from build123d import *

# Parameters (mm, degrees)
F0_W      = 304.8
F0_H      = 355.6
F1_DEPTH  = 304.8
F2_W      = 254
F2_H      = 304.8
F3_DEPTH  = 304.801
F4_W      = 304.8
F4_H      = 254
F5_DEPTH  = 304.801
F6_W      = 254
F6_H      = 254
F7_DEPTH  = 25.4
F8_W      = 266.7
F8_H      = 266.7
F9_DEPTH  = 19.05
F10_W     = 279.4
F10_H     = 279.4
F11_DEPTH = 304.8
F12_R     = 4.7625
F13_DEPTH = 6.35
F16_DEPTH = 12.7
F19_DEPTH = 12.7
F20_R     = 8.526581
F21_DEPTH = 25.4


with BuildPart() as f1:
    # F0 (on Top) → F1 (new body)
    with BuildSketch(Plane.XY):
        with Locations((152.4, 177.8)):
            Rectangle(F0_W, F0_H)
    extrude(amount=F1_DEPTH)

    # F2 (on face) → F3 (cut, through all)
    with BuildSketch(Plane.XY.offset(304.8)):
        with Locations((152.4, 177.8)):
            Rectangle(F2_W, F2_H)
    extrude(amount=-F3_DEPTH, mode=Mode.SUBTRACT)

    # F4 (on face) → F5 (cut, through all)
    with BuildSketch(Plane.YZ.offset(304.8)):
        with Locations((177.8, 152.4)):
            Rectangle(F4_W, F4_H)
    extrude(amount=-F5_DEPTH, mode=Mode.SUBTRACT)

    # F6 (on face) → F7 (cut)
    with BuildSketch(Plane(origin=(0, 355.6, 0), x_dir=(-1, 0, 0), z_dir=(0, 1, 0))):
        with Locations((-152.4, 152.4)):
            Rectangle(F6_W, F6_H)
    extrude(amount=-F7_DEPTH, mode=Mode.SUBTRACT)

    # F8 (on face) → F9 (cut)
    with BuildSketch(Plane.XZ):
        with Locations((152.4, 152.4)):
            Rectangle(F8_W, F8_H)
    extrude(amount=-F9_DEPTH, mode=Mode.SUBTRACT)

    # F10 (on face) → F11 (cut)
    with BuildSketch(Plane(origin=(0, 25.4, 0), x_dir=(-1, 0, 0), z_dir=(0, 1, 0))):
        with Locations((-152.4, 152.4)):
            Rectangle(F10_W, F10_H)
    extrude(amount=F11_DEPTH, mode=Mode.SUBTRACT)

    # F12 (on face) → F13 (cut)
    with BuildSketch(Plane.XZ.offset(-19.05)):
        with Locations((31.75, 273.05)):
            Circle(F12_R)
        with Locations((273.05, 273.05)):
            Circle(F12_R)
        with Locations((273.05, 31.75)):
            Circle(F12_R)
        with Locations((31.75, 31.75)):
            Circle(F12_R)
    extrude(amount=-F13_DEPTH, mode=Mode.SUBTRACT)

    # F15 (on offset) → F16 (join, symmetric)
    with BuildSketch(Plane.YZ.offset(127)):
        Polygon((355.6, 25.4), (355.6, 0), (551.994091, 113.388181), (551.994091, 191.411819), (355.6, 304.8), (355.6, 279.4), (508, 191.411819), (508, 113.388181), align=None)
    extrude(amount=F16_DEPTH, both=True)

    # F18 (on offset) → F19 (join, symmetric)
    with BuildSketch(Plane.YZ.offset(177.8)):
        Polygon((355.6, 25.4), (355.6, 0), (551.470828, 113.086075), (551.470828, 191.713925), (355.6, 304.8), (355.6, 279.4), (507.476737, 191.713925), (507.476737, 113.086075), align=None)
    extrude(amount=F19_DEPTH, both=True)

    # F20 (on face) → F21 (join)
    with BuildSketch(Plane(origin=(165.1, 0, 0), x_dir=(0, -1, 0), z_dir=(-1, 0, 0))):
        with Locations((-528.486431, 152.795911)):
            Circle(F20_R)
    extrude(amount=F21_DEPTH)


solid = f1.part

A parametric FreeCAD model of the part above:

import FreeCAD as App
import Part
import Sketcher
Q = App.Units.Quantity

doc = App.newDocument("Part")
body = doc.addObject("PartDesign::Body", "Body")

# Sketch on XY plane
sketch1 = body.newObject("Sketcher::SketchObject", "Sketch")
sketch1.AttachmentSupport = (doc.getObject("XY_Plane"), [""])
sketch1.MapMode = "FlatFace"
sketch1.addGeometry(Part.LineSegment(App.Vector(0, 356, 0), App.Vector(0, 0, 0)), False)
sketch1.addGeometry(Part.LineSegment(App.Vector(0, 0, 0), App.Vector(305, 0, 0)), False)
sketch1.addGeometry(Part.LineSegment(App.Vector(305, 0, 0), App.Vector(305, 356, 0)), False)
sketch1.addGeometry(Part.LineSegment(App.Vector(305, 356, 0), App.Vector(0, 356, 0)), False)
sketch1.addConstraint(Sketcher.Constraint("Coincident", 0, 2, 1, 1))
sketch1.addConstraint(Sketcher.Constraint("Coincident", 1, 2, 2, 1))
sketch1.addConstraint(Sketcher.Constraint("Coincident", 2, 2, 3, 1))
sketch1.addConstraint(Sketcher.Constraint("Coincident", 3, 2, 0, 1))
sketch1.addConstraint(Sketcher.Constraint("Vertical", 0))
sketch1.addConstraint(Sketcher.Constraint("Horizontal", 1))
sketch1.addConstraint(Sketcher.Constraint("Vertical", 2))
sketch1.addConstraint(Sketcher.Constraint("Horizontal", 3))
sketch1.addConstraint(Sketcher.Constraint("Coincident", 0, 2, -1, 1))
sketch1.addConstraint(Sketcher.Constraint("DistanceX", 1, 1, 1, 2, Q("12 in")))
sketch1.addConstraint(Sketcher.Constraint("DistanceY", 0, 2, 0, 1, Q("14 in")))
pad1 = body.newObject("PartDesign::Pad", "Pad")
pad1.Profile = sketch1
pad1.Length = Q("12 in")

# Sketch on XY plane
sketch2 = body.newObject("Sketcher::SketchObject", "Sketch001")
sketch2.AttachmentSupport = (doc.getObject("XY_Plane"), [""])
sketch2.MapMode = "FlatFace"
sketch2.AttachmentOffset = App.Placement(App.Vector(0, 0, 12 * 25.4), App.Rotation())
sketch2.addGeometry(Part.LineSegment(App.Vector(25, 330, 0), App.Vector(25, 25, 0)), False)
sketch2.addGeometry(Part.LineSegment(App.Vector(25, 25, 0), App.Vector(279, 25, 0)), False)
sketch2.addGeometry(Part.LineSegment(App.Vector(279, 25, 0), App.Vector(279, 330, 0)), False)
sketch2.addGeometry(Part.LineSegment(App.Vector(279, 330, 0), App.Vector(25, 330, 0)), False)
sketch2.addConstraint(Sketcher.Constraint("Coincident", 0, 2, 1, 1))
sketch2.addConstraint(Sketcher.Constraint("Coincident", 1, 2, 2, 1))
sketch2.addConstraint(Sketcher.Constraint("Coincident", 2, 2, 3, 1))
sketch2.addConstraint(Sketcher.Constraint("Coincident", 3, 2, 0, 1))
sketch2.addConstraint(Sketcher.Constraint("Vertical", 0))
sketch2.addConstraint(Sketcher.Constraint("Horizontal", 1))
sketch2.addConstraint(Sketcher.Constraint("Vertical", 2))
sketch2.addConstraint(Sketcher.Constraint("Horizontal", 3))
sketch2.addConstraint(Sketcher.Constraint("DistanceX", 1, 1, 1, 2, Q("10 in")))
sketch2.addConstraint(Sketcher.Constraint("DistanceY", 0, 2, 0, 1, Q("12 in")))
sketch2.addConstraint(Sketcher.Constraint("DistanceX", -1, 1, 0, 2, Q("1 in")))
sketch2.addConstraint(Sketcher.Constraint("DistanceY", -1, 1, 0, 2, Q("1 in")))
pocket1 = body.newObject("PartDesign::Pocket", "Pocket")
pocket1.Profile = sketch2
pocket1.Type = "ThroughAll"

# Sketch on YZ plane
sketch3 = body.newObject("Sketcher::SketchObject", "Sketch002")
sketch3.AttachmentSupport = (doc.getObject("YZ_Plane"), [""])
sketch3.MapMode = "FlatFace"
sketch3.AttachmentOffset = App.Placement(App.Vector(0, 0, 12 * 25.4), App.Rotation())
sketch3.addGeometry(Part.LineSegment(App.Vector(25, 279, 0), App.Vector(25, 25, 0)), False)
sketch3.addGeometry(Part.LineSegment(App.Vector(25, 25, 0), App.Vector(330, 25, 0)), False)
sketch3.addGeometry(Part.LineSegment(App.Vector(330, 25, 0), App.Vector(330, 279, 0)), False)
sketch3.addGeometry(Part.LineSegment(App.Vector(330, 279, 0), App.Vector(25, 279, 0)), False)
sketch3.addConstraint(Sketcher.Constraint("Coincident", 0, 2, 1, 1))
sketch3.addConstraint(Sketcher.Constraint("Coincident", 1, 2, 2, 1))
sketch3.addConstraint(Sketcher.Constraint("Coincident", 2, 2, 3, 1))
sketch3.addConstraint(Sketcher.Constraint("Coincident", 3, 2, 0, 1))
sketch3.addConstraint(Sketcher.Constraint("Vertical", 0))
sketch3.addConstraint(Sketcher.Constraint("Horizontal", 1))
sketch3.addConstraint(Sketcher.Constraint("Vertical", 2))
sketch3.addConstraint(Sketcher.Constraint("Horizontal", 3))
sketch3.addConstraint(Sketcher.Constraint("DistanceX", 1, 1, 1, 2, Q("12 in")))
sketch3.addConstraint(Sketcher.Constraint("DistanceY", 0, 2, 0, 1, Q("10 in")))
sketch3.addConstraint(Sketcher.Constraint("DistanceX", -1, 1, 0, 2, Q("1 in")))
sketch3.addConstraint(Sketcher.Constraint("DistanceY", -1, 1, 0, 2, Q("1 in")))
pocket2 = body.newObject("PartDesign::Pocket", "Pocket001")
pocket2.Profile = sketch3
pocket2.Type = "ThroughAll"

# Sketch on XZ plane
sketch4 = body.newObject("Sketcher::SketchObject", "Sketch003")
sketch4.AttachmentSupport = (doc.getObject("XZ_Plane"), [""])
sketch4.MapMode = "FlatFace"
sketch4.AttachmentOffset = App.Placement(App.Vector(0, 0, -14 * 25.4), App.Rotation())
sketch4.addGeometry(Part.LineSegment(App.Vector(279, 279, 0), App.Vector(279, 25, 0)), False)
sketch4.addGeometry(Part.LineSegment(App.Vector(279, 25, 0), App.Vector(25, 25, 0)), False)
sketch4.addGeometry(Part.LineSegment(App.Vector(25, 25, 0), App.Vector(25, 279, 0)), False)
sketch4.addGeometry(Part.LineSegment(App.Vector(25, 279, 0), App.Vector(279, 279, 0)), False)
sketch4.addConstraint(Sketcher.Constraint("Coincident", 0, 2, 1, 1))
sketch4.addConstraint(Sketcher.Constraint("Coincident", 1, 2, 2, 1))
sketch4.addConstraint(Sketcher.Constraint("Coincident", 2, 2, 3, 1))
sketch4.addConstraint(Sketcher.Constraint("Coincident", 3, 2, 0, 1))
sketch4.addConstraint(Sketcher.Constraint("Vertical", 0))
sketch4.addConstraint(Sketcher.Constraint("Horizontal", 1))
sketch4.addConstraint(Sketcher.Constraint("Vertical", 2))
sketch4.addConstraint(Sketcher.Constraint("Horizontal", 3))
sketch4.addConstraint(Sketcher.Constraint("Equal", 3, 0))
sketch4.addConstraint(Sketcher.Constraint("DistanceX", 1, 2, 1, 1, Q("10 in")))
sketch4.addConstraint(Sketcher.Constraint("DistanceX", -1, 1, 0, 2, Q("11 in")))
sketch4.addConstraint(Sketcher.Constraint("DistanceY", -1, 1, 0, 2, Q("1 in")))
pocket3 = body.newObject("PartDesign::Pocket", "Pocket002")
pocket3.Profile = sketch4
pocket3.Length = Q("1 in")
pocket3.Reversed = True

# Sketch on XZ plane
sketch5 = body.newObject("Sketcher::SketchObject", "Sketch004")
sketch5.AttachmentSupport = (doc.getObject("XZ_Plane"), [""])
sketch5.MapMode = "FlatFace"
sketch5.addGeometry(Part.LineSegment(App.Vector(19, 286, 0), App.Vector(19, 19, 0)), False)
sketch5.addGeometry(Part.LineSegment(App.Vector(19, 19, 0), App.Vector(286, 19, 0)), False)
sketch5.addGeometry(Part.LineSegment(App.Vector(286, 19, 0), App.Vector(286, 286, 0)), False)
sketch5.addGeometry(Part.LineSegment(App.Vector(286, 286, 0), App.Vector(19, 286, 0)), False)
sketch5.addConstraint(Sketcher.Constraint("Coincident", 0, 2, 1, 1))
sketch5.addConstraint(Sketcher.Constraint("Coincident", 1, 2, 2, 1))
sketch5.addConstraint(Sketcher.Constraint("Coincident", 2, 2, 3, 1))
sketch5.addConstraint(Sketcher.Constraint("Coincident", 3, 2, 0, 1))
sketch5.addConstraint(Sketcher.Constraint("Vertical", 0))
sketch5.addConstraint(Sketcher.Constraint("Horizontal", 1))
sketch5.addConstraint(Sketcher.Constraint("Vertical", 2))
sketch5.addConstraint(Sketcher.Constraint("Horizontal", 3))
sketch5.addConstraint(Sketcher.Constraint("Equal", 3, 0))
sketch5.addConstraint(Sketcher.Constraint("DistanceX", 1, 1, 1, 2, Q("10.5 in")))
sketch5.addConstraint(Sketcher.Constraint("DistanceX", -1, 1, 0, 2, Q("0.75 in")))
sketch5.addConstraint(Sketcher.Constraint("DistanceY", -1, 1, 0, 2, Q("0.75 in")))
pocket4 = body.newObject("PartDesign::Pocket", "Pocket003")
pocket4.Profile = sketch5
pocket4.Length = Q("0.75 in")

# Sketch on XZ plane
sketch6 = body.newObject("Sketcher::SketchObject", "Sketch005")
sketch6.AttachmentSupport = (doc.getObject("XZ_Plane"), [""])
sketch6.MapMode = "FlatFace"
sketch6.AttachmentOffset = App.Placement(App.Vector(0, 0, -1 * 25.4), App.Rotation())
sketch6.addGeometry(Part.LineSegment(App.Vector(292, 292, 0), App.Vector(292, 13, 0)), False)
sketch6.addGeometry(Part.LineSegment(App.Vector(292, 13, 0), App.Vector(13, 13, 0)), False)
sketch6.addGeometry(Part.LineSegment(App.Vector(13, 13, 0), App.Vector(13, 292, 0)), False)
sketch6.addGeometry(Part.LineSegment(App.Vector(13, 292, 0), App.Vector(292, 292, 0)), False)
sketch6.addConstraint(Sketcher.Constraint("Coincident", 0, 2, 1, 1))
sketch6.addConstraint(Sketcher.Constraint("Coincident", 1, 2, 2, 1))
sketch6.addConstraint(Sketcher.Constraint("Coincident", 2, 2, 3, 1))
sketch6.addConstraint(Sketcher.Constraint("Coincident", 3, 2, 0, 1))
sketch6.addConstraint(Sketcher.Constraint("Vertical", 0))
sketch6.addConstraint(Sketcher.Constraint("Horizontal", 1))
sketch6.addConstraint(Sketcher.Constraint("Vertical", 2))
sketch6.addConstraint(Sketcher.Constraint("Horizontal", 3))
sketch6.addConstraint(Sketcher.Constraint("Equal", 3, 0))
sketch6.addConstraint(Sketcher.Constraint("DistanceX", 1, 2, 1, 1, Q("11 in")))
sketch6.addConstraint(Sketcher.Constraint("DistanceX", -1, 1, 0, 2, Q("11.5 in")))
sketch6.addConstraint(Sketcher.Constraint("DistanceY", -1, 1, 0, 2, Q("0.5 in")))
pocket5 = body.newObject("PartDesign::Pocket", "Pocket004")
pocket5.Profile = sketch6
pocket5.Length = Q("12 in")

# Sketch on XZ plane
sketch7 = body.newObject("Sketcher::SketchObject", "Sketch006")
sketch7.AttachmentSupport = (doc.getObject("XZ_Plane"), [""])
sketch7.MapMode = "FlatFace"
sketch7.AttachmentOffset = App.Placement(App.Vector(0, 0, -0.75 * 25.4), App.Rotation())
sketch7.addGeometry(Part.Circle(App.Vector(31.8, 273.1, 0), App.Vector(0, 0, 1), 4.8), False)
sketch7.addGeometry(Part.Circle(App.Vector(273.1, 273.1, 0), App.Vector(0, 0, 1), 4.8), False)
sketch7.addGeometry(Part.Circle(App.Vector(273.1, 31.8, 0), App.Vector(0, 0, 1), 4.8), False)
sketch7.addGeometry(Part.Circle(App.Vector(31.8, 31.8, 0), App.Vector(0, 0, 1), 4.8), False)
sketch7.addConstraint(Sketcher.Constraint("Equal", 0, 1))
sketch7.addConstraint(Sketcher.Constraint("Equal", 1, 2))
sketch7.addConstraint(Sketcher.Constraint("Equal", 2, 3))
sketch7.addConstraint(Sketcher.Constraint("Horizontal", 0, 3, 1, 3))
sketch7.addConstraint(Sketcher.Constraint("Horizontal", 2, 3, 3, 3))
sketch7.addConstraint(Sketcher.Constraint("Vertical", 1, 3, 2, 3))
sketch7.addConstraint(Sketcher.Constraint("Vertical", 0, 3, 3, 3))
sketch7.addConstraint(Sketcher.Constraint("Diameter", 0, Q("0.375 in")))
sketch7.addConstraint(Sketcher.Constraint("DistanceX", 0, 3, 1, 3, Q("9.5 in")))
sketch7.addConstraint(Sketcher.Constraint("DistanceY", 2, 3, 1, 3, Q("9.5 in")))
sketch7.addConstraint(Sketcher.Constraint("DistanceX", -1, 1, 0, 3, Q("1.25 in")))
sketch7.addConstraint(Sketcher.Constraint("DistanceY", -1, 1, 0, 3, Q("10.75 in")))
pocket6 = body.newObject("PartDesign::Pocket", "Pocket005")
pocket6.Profile = sketch7
pocket6.Length = Q("0.25 in")

# Sketch on YZ plane
sketch8 = body.newObject("Sketcher::SketchObject", "Sketch007")
sketch8.AttachmentSupport = (doc.getObject("YZ_Plane"), [""])
sketch8.MapMode = "FlatFace"
sketch8.AttachmentOffset = App.Placement(App.Vector(0, 0, 5 * 25.4), App.Rotation())
sketch8.addGeometry(Part.LineSegment(App.Vector(356, 25, 0), App.Vector(356, 0, 0)), False)
sketch8.addGeometry(Part.LineSegment(App.Vector(356, 0, 0), App.Vector(552, 113, 0)), False)
sketch8.addGeometry(Part.LineSegment(App.Vector(552, 113, 0), App.Vector(552, 191, 0)), False)
sketch8.addGeometry(Part.LineSegment(App.Vector(552, 191, 0), App.Vector(356, 305, 0)), False)
sketch8.addGeometry(Part.LineSegment(App.Vector(356, 305, 0), App.Vector(356, 279, 0)), False)
sketch8.addGeometry(Part.LineSegment(App.Vector(356, 279, 0), App.Vector(508, 191, 0)), False)
sketch8.addGeometry(Part.LineSegment(App.Vector(508, 191, 0), App.Vector(508, 113, 0)), False)
sketch8.addGeometry(Part.LineSegment(App.Vector(508, 113, 0), App.Vector(356, 25, 0)), False)
sketch8.addConstraint(Sketcher.Constraint("Coincident", 0, 2, 1, 1))
sketch8.addConstraint(Sketcher.Constraint("Coincident", 1, 2, 2, 1))
sketch8.addConstraint(Sketcher.Constraint("Coincident", 2, 2, 3, 1))
sketch8.addConstraint(Sketcher.Constraint("Coincident", 3, 2, 4, 1))
sketch8.addConstraint(Sketcher.Constraint("Coincident", 4, 2, 5, 1))
sketch8.addConstraint(Sketcher.Constraint("Coincident", 5, 2, 6, 1))
sketch8.addConstraint(Sketcher.Constraint("Coincident", 6, 2, 7, 1))
sketch8.addConstraint(Sketcher.Constraint("Coincident", 7, 2, 0, 1))
sketch8.addConstraint(Sketcher.Constraint("Vertical", 0))
sketch8.addConstraint(Sketcher.Constraint("Vertical", 2))
sketch8.addConstraint(Sketcher.Constraint("Vertical", 4))
sketch8.addConstraint(Sketcher.Constraint("Vertical", 6))
sketch8.addConstraint(Sketcher.Constraint("PointOnObject", 0, 2, -1))
sketch8.addConstraint(Sketcher.Constraint("Parallel", 3, 5))
sketch8.addConstraint(Sketcher.Constraint("Parallel", 1, 7))
sketch8.addConstraint(Sketcher.Constraint("Horizontal", 2, 2, 5, 2))
sketch8.addConstraint(Sketcher.Constraint("Horizontal", 1, 2, 6, 2))
sketch8.addConstraint(Sketcher.Constraint("Vertical", 0, 2, 3, 2))
sketch8.addConstraint(Sketcher.Constraint("Equal", 0, 4))
sketch8.addConstraint(Sketcher.Constraint("DistanceY", 0, 2, 0, 1, Q("1 in")))
sketch8.addConstraint(Sketcher.Constraint("DistanceX", -1, 1, 0, 2, Q("14 in")))
sketch8.addConstraint(Sketcher.Constraint("DistanceY", -1, 1, 3, 2, Q("12 in")))
sketch8.addConstraint(Sketcher.Constraint("DistanceX", -1, 1, 5, 2, Q("20 in")))
sketch8.addConstraint(Sketcher.Constraint("Angle", 1, Q("30 deg")))
pad2 = body.newObject("PartDesign::Pad", "Pad001")
pad2.Profile = sketch8
pad2.Length = Q("1 in")
pad2.Midplane = True

# Sketch on YZ plane
sketch9 = body.newObject("Sketcher::SketchObject", "Sketch008")
sketch9.AttachmentSupport = (doc.getObject("YZ_Plane"), [""])
sketch9.MapMode = "FlatFace"
sketch9.AttachmentOffset = App.Placement(App.Vector(0, 0, 7 * 25.4), App.Rotation())
sketch9.addGeometry(Part.LineSegment(App.Vector(356, 25, 0), App.Vector(356, 0, 0)), False)
sketch9.addGeometry(Part.LineSegment(App.Vector(356, 0, 0), App.Vector(551, 113, 0)), False)
sketch9.addGeometry(Part.LineSegment(App.Vector(551, 113, 0), App.Vector(551, 192, 0)), False)
sketch9.addGeometry(Part.LineSegment(App.Vector(551, 192, 0), App.Vector(356, 305, 0)), False)
sketch9.addGeometry(Part.LineSegment(App.Vector(356, 305, 0), App.Vector(356, 279, 0)), False)
sketch9.addGeometry(Part.LineSegment(App.Vector(356, 279, 0), App.Vector(507, 192, 0)), False)
sketch9.addGeometry(Part.LineSegment(App.Vector(507, 192, 0), App.Vector(507, 113, 0)), False)
sketch9.addGeometry(Part.LineSegment(App.Vector(507, 113, 0), App.Vector(356, 25, 0)), False)
sketch9.addConstraint(Sketcher.Constraint("Coincident", 0, 2, 1, 1))
sketch9.addConstraint(Sketcher.Constraint("Coincident", 1, 2, 2, 1))
sketch9.addConstraint(Sketcher.Constraint("Coincident", 2, 2, 3, 1))
sketch9.addConstraint(Sketcher.Constraint("Coincident", 3, 2, 4, 1))
sketch9.addConstraint(Sketcher.Constraint("Coincident", 4, 2, 5, 1))
sketch9.addConstraint(Sketcher.Constraint("Coincident", 5, 2, 6, 1))
sketch9.addConstraint(Sketcher.Constraint("Coincident", 6, 2, 7, 1))
sketch9.addConstraint(Sketcher.Constraint("Coincident", 7, 2, 0, 1))
sketch9.addConstraint(Sketcher.Constraint("Vertical", 0))
sketch9.addConstraint(Sketcher.Constraint("Vertical", 2))
sketch9.addConstraint(Sketcher.Constraint("Vertical", 4))
sketch9.addConstraint(Sketcher.Constraint("Vertical", 6))
sketch9.addConstraint(Sketcher.Constraint("PointOnObject", 0, 2, -1))
sketch9.addConstraint(Sketcher.Constraint("Parallel", 3, 5))
sketch9.addConstraint(Sketcher.Constraint("Parallel", 1, 7))
sketch9.addConstraint(Sketcher.Constraint("Horizontal", 2, 2, 5, 2))
sketch9.addConstraint(Sketcher.Constraint("Horizontal", 1, 2, 6, 2))
sketch9.addConstraint(Sketcher.Constraint("Vertical", 0, 2, 3, 2))
sketch9.addConstraint(Sketcher.Constraint("Equal", 0, 4))
sketch9.addConstraint(Sketcher.Constraint("DistanceY", 0, 2, 0, 1, Q("1 in")))
sketch9.addConstraint(Sketcher.Constraint("DistanceX", -1, 1, 0, 2, Q("14 in")))
sketch9.addConstraint(Sketcher.Constraint("DistanceY", -1, 1, 3, 2, Q("12 in")))
sketch9.addConstraint(Sketcher.Constraint("Angle", 1, Q("30 deg")))
sketch9.addConstraint(Sketcher.Constraint("DistanceY", 2, 1, 2, 2, 78.62785))
pad3 = body.newObject("PartDesign::Pad", "Pad002")
pad3.Profile = sketch9
pad3.Length = Q("1 in")
pad3.Midplane = True

# Sketch on YZ plane
sketch10 = body.newObject("Sketcher::SketchObject", "Sketch009")
sketch10.AttachmentSupport = (doc.getObject("YZ_Plane"), [""])
sketch10.MapMode = "FlatFace"
sketch10.AttachmentOffset = App.Placement(App.Vector(0, 0, 6.5 * 25.4), App.Rotation())
sketch10.addGeometry(Part.Circle(App.Vector(528, 153, 0), App.Vector(0, 0, 1), 9), False)
sketch10.addConstraint(Sketcher.Constraint("Diameter", 0, 17.053162))
sketch10.addConstraint(Sketcher.Constraint("DistanceX", -1, 1, 0, 3, 528.486431))
sketch10.addConstraint(Sketcher.Constraint("DistanceY", -1, 1, 0, 3, 152.795911))
pad4 = body.newObject("PartDesign::Pad", "Pad003")
pad4.Profile = sketch10
pad4.Length = Q("1 in")
pad4.Reversed = True

doc.recompute()
